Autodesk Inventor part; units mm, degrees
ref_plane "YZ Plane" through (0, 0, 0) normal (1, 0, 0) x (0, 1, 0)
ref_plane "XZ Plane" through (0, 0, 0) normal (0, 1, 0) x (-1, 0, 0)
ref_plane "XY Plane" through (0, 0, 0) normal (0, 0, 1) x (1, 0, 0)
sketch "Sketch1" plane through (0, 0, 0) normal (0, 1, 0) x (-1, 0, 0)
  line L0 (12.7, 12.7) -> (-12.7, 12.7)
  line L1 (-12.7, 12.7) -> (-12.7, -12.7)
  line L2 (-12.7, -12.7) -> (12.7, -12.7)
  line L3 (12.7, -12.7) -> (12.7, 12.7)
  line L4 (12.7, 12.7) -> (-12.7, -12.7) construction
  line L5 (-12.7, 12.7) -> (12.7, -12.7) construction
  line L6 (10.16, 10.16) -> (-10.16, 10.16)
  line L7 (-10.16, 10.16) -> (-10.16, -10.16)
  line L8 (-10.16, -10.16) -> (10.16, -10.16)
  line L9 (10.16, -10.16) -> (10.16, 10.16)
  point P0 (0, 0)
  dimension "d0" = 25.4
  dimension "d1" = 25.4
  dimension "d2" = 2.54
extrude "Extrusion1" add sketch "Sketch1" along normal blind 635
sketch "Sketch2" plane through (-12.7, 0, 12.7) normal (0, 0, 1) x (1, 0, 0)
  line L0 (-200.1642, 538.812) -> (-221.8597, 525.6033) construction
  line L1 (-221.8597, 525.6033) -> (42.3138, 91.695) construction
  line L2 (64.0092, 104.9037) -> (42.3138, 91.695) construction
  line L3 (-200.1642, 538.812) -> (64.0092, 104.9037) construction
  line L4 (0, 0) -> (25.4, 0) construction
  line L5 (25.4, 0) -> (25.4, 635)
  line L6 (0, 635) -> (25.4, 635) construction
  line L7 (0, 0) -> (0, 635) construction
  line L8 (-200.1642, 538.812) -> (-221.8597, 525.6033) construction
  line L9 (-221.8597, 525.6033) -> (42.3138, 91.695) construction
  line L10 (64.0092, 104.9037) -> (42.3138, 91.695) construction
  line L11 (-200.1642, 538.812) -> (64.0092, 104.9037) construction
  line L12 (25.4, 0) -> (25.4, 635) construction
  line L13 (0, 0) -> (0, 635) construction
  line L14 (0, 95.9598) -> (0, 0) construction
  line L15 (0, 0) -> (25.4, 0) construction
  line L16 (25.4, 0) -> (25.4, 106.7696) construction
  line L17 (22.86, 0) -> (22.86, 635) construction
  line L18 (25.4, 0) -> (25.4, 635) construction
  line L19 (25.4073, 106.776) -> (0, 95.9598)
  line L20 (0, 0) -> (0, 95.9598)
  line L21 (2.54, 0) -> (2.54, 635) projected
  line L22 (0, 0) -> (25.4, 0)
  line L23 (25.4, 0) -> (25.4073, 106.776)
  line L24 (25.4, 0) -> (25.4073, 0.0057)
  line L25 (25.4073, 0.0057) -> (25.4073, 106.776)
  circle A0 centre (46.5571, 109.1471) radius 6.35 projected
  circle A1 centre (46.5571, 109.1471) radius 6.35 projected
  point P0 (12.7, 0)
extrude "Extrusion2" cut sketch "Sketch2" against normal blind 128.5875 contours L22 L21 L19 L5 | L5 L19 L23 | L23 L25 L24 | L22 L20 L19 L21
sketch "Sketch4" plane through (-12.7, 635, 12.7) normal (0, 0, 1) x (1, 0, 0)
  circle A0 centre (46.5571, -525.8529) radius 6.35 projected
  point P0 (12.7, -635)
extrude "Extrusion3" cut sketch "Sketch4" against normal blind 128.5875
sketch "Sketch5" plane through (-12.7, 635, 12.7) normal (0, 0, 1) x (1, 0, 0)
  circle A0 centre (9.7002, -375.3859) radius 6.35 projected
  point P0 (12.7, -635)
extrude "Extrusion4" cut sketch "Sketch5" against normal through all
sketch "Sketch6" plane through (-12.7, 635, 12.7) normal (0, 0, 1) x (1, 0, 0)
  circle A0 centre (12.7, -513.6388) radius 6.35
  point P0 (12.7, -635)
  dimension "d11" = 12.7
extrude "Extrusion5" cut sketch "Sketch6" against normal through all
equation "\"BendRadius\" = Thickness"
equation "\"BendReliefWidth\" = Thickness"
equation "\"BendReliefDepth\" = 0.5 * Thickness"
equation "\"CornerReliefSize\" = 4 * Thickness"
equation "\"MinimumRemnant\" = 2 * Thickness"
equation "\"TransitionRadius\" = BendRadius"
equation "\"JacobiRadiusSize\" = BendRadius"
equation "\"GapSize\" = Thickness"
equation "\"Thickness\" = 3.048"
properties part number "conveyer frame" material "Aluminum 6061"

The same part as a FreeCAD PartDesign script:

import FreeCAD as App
import Part
import Sketcher
from FreeCAD import Vector
Q = App.Units.Quantity

doc = App.newDocument("Part")
body = doc.addObject("PartDesign::Body", "Body")

# Sketch on XZ plane
sketch1 = body.newObject("Sketcher::SketchObject", "Sketch")
sketch1.AttachmentSupport = (doc.getObject("XZ_Plane"), [""])
sketch1.MapMode = "FlatFace"
sketch1.addGeometry(Part.LineSegment(Vector(-13, -13, 0), Vector(-13, 13, 0)), False)
sketch1.addGeometry(Part.LineSegment(Vector(-13, 13, 0), Vector(13, 13, 0)), False)
sketch1.addGeometry(Part.LineSegment(Vector(13, 13, 0), Vector(13, -13, 0)), False)
sketch1.addGeometry(Part.LineSegment(Vector(13, -13, 0), Vector(-13, -13, 0)), False)
sketch1.addGeometry(Part.LineSegment(Vector(10, 10, 0), Vector(-10, 10, 0)), False)
sketch1.addGeometry(Part.LineSegment(Vector(-10, 10, 0), Vector(-10, -10, 0)), False)
sketch1.addGeometry(Part.LineSegment(Vector(-10, -10, 0), Vector(10, -10, 0)), False)
sketch1.addGeometry(Part.LineSegment(Vector(10, -10, 0), Vector(10, 10, 0)), False)
sketch1.addConstraint(Sketcher.Constraint("Coincident", 0, 2, 1, 1))
sketch1.addConstraint(Sketcher.Constraint("Coincident", 1, 2, 2, 1))
sketch1.addConstraint(Sketcher.Constraint("Coincident", 2, 2, 3, 1))
sketch1.addConstraint(Sketcher.Constraint("Coincident", 3, 2, 0, 1))
sketch1.addConstraint(Sketcher.Constraint("Coincident", 4, 2, 5, 1))
sketch1.addConstraint(Sketcher.Constraint("Coincident", 5, 2, 6, 1))
sketch1.addConstraint(Sketcher.Constraint("Coincident", 6, 2, 7, 1))
sketch1.addConstraint(Sketcher.Constraint("Coincident", 7, 2, 4, 1))
sketch1.addConstraint(Sketcher.Constraint("Vertical", 0))
sketch1.addConstraint(Sketcher.Constraint("Horizontal", 1))
sketch1.addConstraint(Sketcher.Constraint("Vertical", 2))
sketch1.addConstraint(Sketcher.Constraint("Horizontal", 3))
sketch1.addConstraint(Sketcher.Constraint("Horizontal", 4))
sketch1.addConstraint(Sketcher.Constraint("Vertical", 5))
sketch1.addConstraint(Sketcher.Constraint("Horizontal", 6))
sketch1.addConstraint(Sketcher.Constraint("Vertical", 7))
sketch1.addConstraint(Sketcher.Constraint("Symmetric", 0, 2, 2, 2, -1, 1))
sketch1.addConstraint(Sketcher.Constraint("Symmetric", 4, 2, 6, 2, -1, 1))
sketch1.addConstraint(Sketcher.Constraint("Equal", 3, 0))
sketch1.addConstraint(Sketcher.Constraint("Equal", 6, 5))
sketch1.addConstraint(Sketcher.Constraint("DistanceX", 1, 1, 1, 2, Q("1 in")))
sketch1.addConstraint(Sketcher.Constraint("DistanceX", 0, 2, 4, 2, Q("0.1 in")))
pad1 = body.newObject("PartDesign::Pad", "Pad")
pad1.Profile = sketch1
pad1.Length = Q("25 in")
pad1.Reversed = True

# Sketch on XY plane
sketch2 = body.newObject("Sketcher::SketchObject", "Sketch001")
sketch2.AttachmentSupport = (doc.getObject("XY_Plane"), [""])
sketch2.MapMode = "FlatFace"
sketch2.AttachmentOffset = App.Placement(Vector(0, 0, 0.5 * 25.4), App.Rotation())
sketch2.addGeometry(Part.LineSegment(Vector(12.7, 0, 0), Vector(12.707, 0.006, 0)), False)
sketch2.addGeometry(Part.LineSegment(Vector(12.707, 0.006, 0), Vector(12.707, 106.776, 0)), False)
sketch2.addGeometry(Part.LineSegment(Vector(12.707, 106.776, 0), Vector(-12.7, 95.96, 0)), False)
sketch2.addGeometry(Part.LineSegment(Vector(-12.7, 95.96, 0), Vector(-12.7, 0, 0)), False)
sketch2.addGeometry(Part.LineSegment(Vector(-12.7, 0, 0), Vector(12.7, 0, 0)), False)
sketch2.addConstraint(Sketcher.Constraint("Coincident", 0, 2, 1, 1))
sketch2.addConstraint(Sketcher.Constraint("Coincident", 1, 2, 2, 1))
sketch2.addConstraint(Sketcher.Constraint("Coincident", 2, 2, 3, 1))
sketch2.addConstraint(Sketcher.Constraint("Coincident", 3, 2, 4, 1))
sketch2.addConstraint(Sketcher.Constraint("Coincident", 4, 2, 0, 1))
sketch2.addConstraint(Sketcher.Constraint("Vertical", 1))
sketch2.addConstraint(Sketcher.Constraint("Vertical", 3))
sketch2.addConstraint(Sketcher.Constraint("Horizontal", 4))
sketch2.addConstraint(Sketcher.Constraint("Symmetric", 3, 2, 4, 2, -1, 1))
sketch2.addConstraint(Sketcher.Constraint("DistanceX", 4, 1, 4, 2, Q("1 in")))
sketch2.addConstraint(Sketcher.Constraint("Angle", 2, Q("-156.94 deg")))
sketch2.addConstraint(Sketcher.Constraint("DistanceY", 1, 1, 1, 2, Q("106.7703 mm")))
sketch2.addConstraint(Sketcher.Constraint("DistanceY", 3, 2, 3, 1, Q("95.9598 mm")))
sketch2.addConstraint(Sketcher.Constraint("Distance", 0, Q("0.0093 mm")))
pocket1 = body.newObject("PartDesign::Pocket", "Pocket")
pocket1.Profile = sketch2
pocket1.Length = Q("5.0625 in")

# Sketch on XY plane
sketch3 = body.newObject("Sketcher::SketchObject", "Sketch002")
sketch3.AttachmentSupport = (doc.getObject("XY_Plane"), [""])
sketch3.MapMode = "FlatFace"
sketch3.AttachmentOffset = App.Placement(Vector(0, 0, 0.5 * 25.4), App.Rotation())
sketch3.addGeometry(Part.Circle(Vector(34, 109, 0), Vector(0, 0, 1), 6), False)
sketch3.addConstraint(Sketcher.Constraint("Diameter", 0, Q("0.5 in")))
sketch3.addConstraint(Sketcher.Constraint("DistanceX", -1, 1, 0, 3, Q("33.857 mm")))
sketch3.addConstraint(Sketcher.Constraint("DistanceY", -1, 1, 0, 3, Q("109.147 mm")))
pocket2 = body.newObject("PartDesign::Pocket", "Pocket001")
pocket2.Profile = sketch3
pocket2.Length = Q("5.0625 in")

# Sketch on XY plane
sketch4 = body.newObject("Sketcher::SketchObject", "Sketch003")
sketch4.AttachmentSupport = (doc.getObject("XY_Plane"), [""])
sketch4.MapMode = "FlatFace"
sketch4.AttachmentOffset = App.Placement(Vector(0, 0, 0.5 * 25.4), App.Rotation())
sketch4.addGeometry(Part.Circle(Vector(-3, 260, 0), Vector(0, 0, 1), 6), False)
sketch4.addConstraint(Sketcher.Constraint("Diameter", 0, Q("0.5 in")))
sketch4.addConstraint(Sketcher.Constraint("DistanceX", 0, 3, -1, 1, Q("0.1181 in")))
sketch4.addConstraint(Sketcher.Constraint("DistanceY", -1, 1, 0, 3, Q("259.614 mm")))
pocket3 = body.newObject("PartDesign::Pocket", "Pocket002")
pocket3.Profile = sketch4
pocket3.Type = "ThroughAll"

# Sketch on XY plane
sketch5 = body.newObject("Sketcher::SketchObject", "Sketch004")
sketch5.AttachmentSupport = (doc.getObject("XY_Plane"), [""])
sketch5.MapMode = "FlatFace"
sketch5.AttachmentOffset = App.Placement(Vector(0, 0, 0.5 * 25.4), App.Rotation())
sketch5.addGeometry(Part.Circle(Vector(0, 121, 0), Vector(0, 0, 1), 6), False)
sketch5.addConstraint(Sketcher.Constraint("PointOnObject", 0, 3, -2))
sketch5.addConstraint(Sketcher.Constraint("Diameter", 0, Q("0.5 in")))
sketch5.addConstraint(Sketcher.Constraint("DistanceY", -1, 1, 0, 3, Q("4.778 in")))
pocket4 = body.newObject("PartDesign::Pocket", "Pocket003")
pocket4.Profile = sketch5
pocket4.Type = "ThroughAll"

doc.recompute()
